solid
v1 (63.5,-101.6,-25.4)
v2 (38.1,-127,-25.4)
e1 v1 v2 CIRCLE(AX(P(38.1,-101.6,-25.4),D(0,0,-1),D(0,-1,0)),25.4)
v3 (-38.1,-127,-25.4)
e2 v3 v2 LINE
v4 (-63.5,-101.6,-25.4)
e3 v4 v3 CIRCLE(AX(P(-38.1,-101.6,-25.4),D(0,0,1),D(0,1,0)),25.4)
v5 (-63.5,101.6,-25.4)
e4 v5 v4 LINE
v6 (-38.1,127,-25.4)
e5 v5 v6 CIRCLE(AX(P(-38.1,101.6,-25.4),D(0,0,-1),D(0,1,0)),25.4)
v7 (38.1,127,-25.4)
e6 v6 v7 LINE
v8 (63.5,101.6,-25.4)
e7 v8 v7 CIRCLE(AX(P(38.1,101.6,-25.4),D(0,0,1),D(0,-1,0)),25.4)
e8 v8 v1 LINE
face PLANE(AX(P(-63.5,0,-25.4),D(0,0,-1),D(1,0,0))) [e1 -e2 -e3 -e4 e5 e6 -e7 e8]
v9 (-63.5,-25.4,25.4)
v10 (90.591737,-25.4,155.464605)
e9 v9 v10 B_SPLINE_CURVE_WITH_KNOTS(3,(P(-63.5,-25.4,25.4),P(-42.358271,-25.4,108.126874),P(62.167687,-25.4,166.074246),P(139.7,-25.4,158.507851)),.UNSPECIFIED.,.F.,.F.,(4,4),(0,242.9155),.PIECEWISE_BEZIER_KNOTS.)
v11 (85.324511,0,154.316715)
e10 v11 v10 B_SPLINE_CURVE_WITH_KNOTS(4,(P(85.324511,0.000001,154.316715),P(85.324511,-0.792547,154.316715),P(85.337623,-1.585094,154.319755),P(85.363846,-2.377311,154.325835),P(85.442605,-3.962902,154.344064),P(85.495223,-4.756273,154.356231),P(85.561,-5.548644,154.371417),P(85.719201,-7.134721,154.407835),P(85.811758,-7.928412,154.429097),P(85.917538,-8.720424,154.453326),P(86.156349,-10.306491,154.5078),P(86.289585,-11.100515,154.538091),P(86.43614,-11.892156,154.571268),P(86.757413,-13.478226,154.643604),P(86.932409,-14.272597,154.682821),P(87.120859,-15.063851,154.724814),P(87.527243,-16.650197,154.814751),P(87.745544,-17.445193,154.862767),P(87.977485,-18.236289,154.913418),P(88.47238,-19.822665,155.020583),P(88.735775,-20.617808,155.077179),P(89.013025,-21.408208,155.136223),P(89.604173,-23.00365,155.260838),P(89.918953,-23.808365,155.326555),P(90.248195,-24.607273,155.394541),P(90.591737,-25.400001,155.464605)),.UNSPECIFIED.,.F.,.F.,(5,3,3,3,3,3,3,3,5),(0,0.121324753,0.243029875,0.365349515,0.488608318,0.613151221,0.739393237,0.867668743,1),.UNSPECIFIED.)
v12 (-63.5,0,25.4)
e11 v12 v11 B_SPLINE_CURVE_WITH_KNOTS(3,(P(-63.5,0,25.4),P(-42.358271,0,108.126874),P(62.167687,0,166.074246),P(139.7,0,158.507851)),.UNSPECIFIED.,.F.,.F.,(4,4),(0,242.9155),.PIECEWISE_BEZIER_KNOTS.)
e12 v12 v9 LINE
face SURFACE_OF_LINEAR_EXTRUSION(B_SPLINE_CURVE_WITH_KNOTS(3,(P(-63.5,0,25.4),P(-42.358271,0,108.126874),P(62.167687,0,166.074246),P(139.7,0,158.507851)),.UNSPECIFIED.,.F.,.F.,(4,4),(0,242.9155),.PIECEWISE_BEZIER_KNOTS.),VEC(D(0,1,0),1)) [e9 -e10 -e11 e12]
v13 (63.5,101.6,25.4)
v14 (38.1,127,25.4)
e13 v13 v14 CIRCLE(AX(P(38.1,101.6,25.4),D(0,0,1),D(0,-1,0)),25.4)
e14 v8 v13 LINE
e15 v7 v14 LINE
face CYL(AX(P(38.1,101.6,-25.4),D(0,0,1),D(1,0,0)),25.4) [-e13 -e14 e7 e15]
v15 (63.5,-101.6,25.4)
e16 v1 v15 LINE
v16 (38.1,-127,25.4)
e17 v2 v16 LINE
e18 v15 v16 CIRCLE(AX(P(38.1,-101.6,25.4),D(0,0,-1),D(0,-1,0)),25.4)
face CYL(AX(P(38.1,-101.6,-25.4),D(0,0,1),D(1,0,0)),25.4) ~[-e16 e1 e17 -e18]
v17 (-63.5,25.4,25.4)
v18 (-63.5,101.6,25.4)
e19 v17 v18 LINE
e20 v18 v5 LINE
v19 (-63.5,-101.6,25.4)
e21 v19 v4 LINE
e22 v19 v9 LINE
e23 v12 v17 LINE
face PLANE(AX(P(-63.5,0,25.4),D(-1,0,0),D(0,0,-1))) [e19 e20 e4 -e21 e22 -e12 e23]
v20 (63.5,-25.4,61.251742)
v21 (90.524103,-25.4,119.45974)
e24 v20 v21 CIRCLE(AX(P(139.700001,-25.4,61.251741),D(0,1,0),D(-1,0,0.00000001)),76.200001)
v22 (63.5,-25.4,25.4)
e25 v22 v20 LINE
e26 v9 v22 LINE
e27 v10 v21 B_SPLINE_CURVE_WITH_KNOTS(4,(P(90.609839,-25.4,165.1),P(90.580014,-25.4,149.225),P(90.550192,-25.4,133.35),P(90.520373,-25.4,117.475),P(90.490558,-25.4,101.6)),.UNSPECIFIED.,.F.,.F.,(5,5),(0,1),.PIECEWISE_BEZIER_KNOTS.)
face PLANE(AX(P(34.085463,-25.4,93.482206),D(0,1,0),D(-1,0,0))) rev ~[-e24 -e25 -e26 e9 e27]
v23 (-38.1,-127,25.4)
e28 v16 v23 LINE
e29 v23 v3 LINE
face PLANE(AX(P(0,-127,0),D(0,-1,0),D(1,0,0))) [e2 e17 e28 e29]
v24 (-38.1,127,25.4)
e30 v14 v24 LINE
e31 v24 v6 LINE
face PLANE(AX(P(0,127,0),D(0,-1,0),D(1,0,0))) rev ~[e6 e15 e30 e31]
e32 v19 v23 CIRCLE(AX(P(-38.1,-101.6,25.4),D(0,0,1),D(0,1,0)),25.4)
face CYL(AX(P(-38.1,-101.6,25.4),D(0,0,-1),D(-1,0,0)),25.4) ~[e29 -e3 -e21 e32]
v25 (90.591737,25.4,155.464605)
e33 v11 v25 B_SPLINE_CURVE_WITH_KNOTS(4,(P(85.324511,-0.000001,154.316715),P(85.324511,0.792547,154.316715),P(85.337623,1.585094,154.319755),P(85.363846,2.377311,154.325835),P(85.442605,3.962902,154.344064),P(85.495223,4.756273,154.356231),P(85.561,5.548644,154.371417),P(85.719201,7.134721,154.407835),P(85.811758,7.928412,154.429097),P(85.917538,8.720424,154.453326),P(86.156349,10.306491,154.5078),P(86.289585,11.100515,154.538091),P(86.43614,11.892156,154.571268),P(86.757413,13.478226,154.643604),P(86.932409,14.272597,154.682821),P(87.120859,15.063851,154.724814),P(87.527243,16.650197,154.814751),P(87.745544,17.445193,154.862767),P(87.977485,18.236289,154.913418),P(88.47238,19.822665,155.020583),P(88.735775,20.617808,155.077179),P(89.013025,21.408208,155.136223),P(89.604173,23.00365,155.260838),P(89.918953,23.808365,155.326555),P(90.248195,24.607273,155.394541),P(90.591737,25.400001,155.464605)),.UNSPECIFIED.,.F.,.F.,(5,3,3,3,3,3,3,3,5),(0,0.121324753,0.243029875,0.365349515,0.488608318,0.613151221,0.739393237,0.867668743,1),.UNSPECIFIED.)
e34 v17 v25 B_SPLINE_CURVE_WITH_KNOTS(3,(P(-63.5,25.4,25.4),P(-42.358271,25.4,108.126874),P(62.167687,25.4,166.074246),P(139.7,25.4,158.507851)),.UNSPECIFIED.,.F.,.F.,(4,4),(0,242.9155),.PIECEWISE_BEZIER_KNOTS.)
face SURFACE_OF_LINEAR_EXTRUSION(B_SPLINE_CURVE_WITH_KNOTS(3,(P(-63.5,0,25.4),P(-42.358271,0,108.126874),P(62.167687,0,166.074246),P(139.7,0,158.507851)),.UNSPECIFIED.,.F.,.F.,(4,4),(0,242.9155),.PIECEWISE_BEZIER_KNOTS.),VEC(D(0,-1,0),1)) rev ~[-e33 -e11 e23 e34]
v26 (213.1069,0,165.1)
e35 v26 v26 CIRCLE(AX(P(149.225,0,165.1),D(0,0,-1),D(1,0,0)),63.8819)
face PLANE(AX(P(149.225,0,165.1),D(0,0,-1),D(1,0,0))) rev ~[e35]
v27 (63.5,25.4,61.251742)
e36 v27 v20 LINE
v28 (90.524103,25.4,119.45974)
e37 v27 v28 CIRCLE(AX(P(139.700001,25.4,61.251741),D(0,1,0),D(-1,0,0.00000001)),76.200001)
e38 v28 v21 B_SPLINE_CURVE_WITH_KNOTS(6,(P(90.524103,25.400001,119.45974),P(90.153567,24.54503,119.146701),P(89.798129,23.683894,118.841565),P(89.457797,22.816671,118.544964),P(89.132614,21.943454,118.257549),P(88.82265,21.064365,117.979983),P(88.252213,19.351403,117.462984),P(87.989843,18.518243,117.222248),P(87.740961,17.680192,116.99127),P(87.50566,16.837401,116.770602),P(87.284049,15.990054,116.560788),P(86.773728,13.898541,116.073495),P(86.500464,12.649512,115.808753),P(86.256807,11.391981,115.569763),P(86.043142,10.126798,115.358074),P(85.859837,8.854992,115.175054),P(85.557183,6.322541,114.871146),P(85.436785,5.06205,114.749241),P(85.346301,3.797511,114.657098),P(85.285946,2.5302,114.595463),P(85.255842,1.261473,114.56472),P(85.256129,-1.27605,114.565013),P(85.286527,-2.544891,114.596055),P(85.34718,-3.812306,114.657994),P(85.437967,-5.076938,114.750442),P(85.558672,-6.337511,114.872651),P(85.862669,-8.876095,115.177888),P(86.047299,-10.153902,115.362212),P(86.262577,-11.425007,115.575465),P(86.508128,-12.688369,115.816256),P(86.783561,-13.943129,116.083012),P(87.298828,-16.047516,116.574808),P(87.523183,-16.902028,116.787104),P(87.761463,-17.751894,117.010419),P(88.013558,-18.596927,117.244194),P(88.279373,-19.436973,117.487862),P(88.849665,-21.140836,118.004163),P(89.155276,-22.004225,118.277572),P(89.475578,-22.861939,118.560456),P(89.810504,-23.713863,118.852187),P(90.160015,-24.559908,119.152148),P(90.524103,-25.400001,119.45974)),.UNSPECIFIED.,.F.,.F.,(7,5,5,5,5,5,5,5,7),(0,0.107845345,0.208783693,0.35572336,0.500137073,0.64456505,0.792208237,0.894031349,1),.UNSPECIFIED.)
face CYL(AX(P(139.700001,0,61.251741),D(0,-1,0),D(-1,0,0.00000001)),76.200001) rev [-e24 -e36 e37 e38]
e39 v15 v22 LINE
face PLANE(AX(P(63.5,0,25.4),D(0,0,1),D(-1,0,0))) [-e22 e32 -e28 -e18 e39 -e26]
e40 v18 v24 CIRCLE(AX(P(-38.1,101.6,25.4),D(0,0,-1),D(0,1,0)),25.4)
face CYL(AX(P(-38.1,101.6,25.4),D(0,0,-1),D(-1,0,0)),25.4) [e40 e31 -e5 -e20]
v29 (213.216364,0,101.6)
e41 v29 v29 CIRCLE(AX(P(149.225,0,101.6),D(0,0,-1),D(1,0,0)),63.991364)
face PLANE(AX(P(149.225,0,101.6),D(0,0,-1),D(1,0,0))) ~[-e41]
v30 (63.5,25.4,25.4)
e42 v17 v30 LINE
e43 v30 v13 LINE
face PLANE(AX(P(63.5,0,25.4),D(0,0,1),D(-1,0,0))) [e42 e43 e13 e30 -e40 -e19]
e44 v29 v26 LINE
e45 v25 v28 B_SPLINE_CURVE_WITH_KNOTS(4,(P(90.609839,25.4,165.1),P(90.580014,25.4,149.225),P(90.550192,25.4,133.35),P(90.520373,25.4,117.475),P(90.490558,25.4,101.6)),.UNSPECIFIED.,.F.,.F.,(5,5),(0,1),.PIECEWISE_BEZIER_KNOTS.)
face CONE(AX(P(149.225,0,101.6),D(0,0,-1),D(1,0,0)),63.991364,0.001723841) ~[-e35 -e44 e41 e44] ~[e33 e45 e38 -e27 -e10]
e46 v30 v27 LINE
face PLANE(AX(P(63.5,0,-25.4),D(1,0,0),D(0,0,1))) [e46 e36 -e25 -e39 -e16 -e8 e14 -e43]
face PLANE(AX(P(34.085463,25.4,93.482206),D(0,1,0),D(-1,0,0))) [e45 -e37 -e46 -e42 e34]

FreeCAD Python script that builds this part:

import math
import FreeCAD as App
import Part
import Sketcher
Q = App.Units.Quantity


def edges_at(feature, points):
    """Names of the edges that pass closest to the given points."""
    edges = feature.Shape.Edges
    near = lambda p: min(range(len(edges)), key=lambda i: edges[i].distToShape(Part.Vertex(*p))[0])
    return sorted({f"Edge{near(p) + 1}" for p in points})

doc = App.newDocument("Part")
body = doc.addObject("PartDesign::Body", "Body")

sketch1 = body.newObject("Sketcher::SketchObject", "Sketch")
sketch1.AttachmentSupport = (doc.getObject("XZ_Plane"), [""])
sketch1.MapMode = "FlatFace"
sketch1.addGeometry(Part.LineSegment(App.Vector(-63.5, 25.4, 0), App.Vector(-63.5, -25.4, 0)), False)
sketch1.addGeometry(Part.LineSegment(App.Vector(-63.5, -25.4, 0), App.Vector(63.5, -25.4, 0)), False)
sketch1.addGeometry(Part.LineSegment(App.Vector(63.5, -25.4, 0), App.Vector(63.5, 25.4, 0)), False)
sketch1.addGeometry(Part.LineSegment(App.Vector(63.5, 25.4, 0), App.Vector(-63.5, 25.4, 0)), False)
sketch1.addConstraint(Sketcher.Constraint("Coincident", 0, 2, 1, 1))
sketch1.addConstraint(Sketcher.Constraint("Coincident", 1, 2, 2, 1))
sketch1.addConstraint(Sketcher.Constraint("Coincident", 2, 2, 3, 1))
sketch1.addConstraint(Sketcher.Constraint("Coincident", 3, 2, 0, 1))
sketch1.addConstraint(Sketcher.Constraint("Vertical", 0))
sketch1.addConstraint(Sketcher.Constraint("Horizontal", 1))
sketch1.addConstraint(Sketcher.Constraint("Vertical", 2))
sketch1.addConstraint(Sketcher.Constraint("Horizontal", 3))
sketch1.addConstraint(Sketcher.Constraint("Symmetric", 0, 2, 2, 2, -1, 1))
sketch1.addConstraint(Sketcher.Constraint("DistanceX", 1, 1, 1, 2, Q("5 in")))
sketch1.addConstraint(Sketcher.Constraint("DistanceY", 0, 2, 0, 1, Q("2 in")))
pad1 = body.newObject("PartDesign::Pad", "Pad")
pad1.Profile = sketch1
pad1.Length = Q("10 in")
pad1.Midplane = True

sketch2 = body.newObject("Sketcher::SketchObject", "Sketch001")
sketch2.AttachmentSupport = (doc.getObject("XZ_Plane"), [""])
sketch2.MapMode = "FlatFace"
sketch2.addGeometry(Part.BSplineCurve([App.Vector(-63.5, 25.4, 0), App.Vector(-42.358271, 108.126874, 0), App.Vector(62.167687, 166.074246, 0), App.Vector(139.7, 158.507851, 0)], [4, 4], [0, 242.9155], False, 3, [1, 1, 1, 1], False), False)
sketch2.addGeometry(Part.LineSegment(App.Vector(-63.5, 25.4, 0), App.Vector(63.5, 25.4, 0)), False)
sketch2.addGeometry(Part.LineSegment(App.Vector(63.5, 25.4, 0), App.Vector(63.5, 61.251742, 0)), False)
sketch2.addGeometry(Part.ArcOfCircle(Part.Circle(App.Vector(139.700001, 61.251741, 0), App.Vector(0, 0, 1), 76.200001), math.radians(90.000001), math.radians(179.999999)), False)
sketch2.addGeometry(Part.LineSegment(App.Vector(139.7, 137.451742, 0), App.Vector(149.225, 137.451742, 0)), False)
sketch2.addGeometry(Part.LineSegment(App.Vector(149.225, 137.451742, 0), App.Vector(149.225, 158.507851, 0)), False)
sketch2.addGeometry(Part.LineSegment(App.Vector(149.225, 158.507851, 0), App.Vector(139.7, 158.507851, 0)), False)
sketch2.addConstraint(Sketcher.Constraint("Block", 0))
sketch2.addConstraint(Sketcher.Constraint("Coincident", 0, 1, 1, 1))
sketch2.addConstraint(Sketcher.Constraint("Coincident", 1, 2, 2, 1))
sketch2.addConstraint(Sketcher.Constraint("Tangent", 2, 2, 3, 2))
sketch2.addConstraint(Sketcher.Constraint("Tangent", 3, 1, 4, 1))
sketch2.addConstraint(Sketcher.Constraint("Coincident", 4, 2, 5, 1))
sketch2.addConstraint(Sketcher.Constraint("Coincident", 5, 2, 6, 1))
sketch2.addConstraint(Sketcher.Constraint("Coincident", 6, 2, 0, 2))
sketch2.addConstraint(Sketcher.Constraint("Horizontal", 1))
sketch2.addConstraint(Sketcher.Constraint("Vertical", 2))
sketch2.addConstraint(Sketcher.Constraint("Horizontal", 4))
sketch2.addConstraint(Sketcher.Constraint("Vertical", 5))
sketch2.addConstraint(Sketcher.Constraint("Horizontal", 6))
sketch2.addConstraint(Sketcher.Constraint("Vertical", 3, 1, 6, 2))
sketch2.addConstraint(Sketcher.Constraint("Radius", 3, Q("3 in")))
sketch2.addConstraint(Sketcher.Constraint("DistanceX", 4, 1, 4, 2, Q("0.375 in")))
sketch2.addConstraint(Sketcher.Constraint("DistanceY", 5, 1, 5, 2, 21.056109))
pad2 = body.newObject("PartDesign::Pad", "Pad001")
pad2.Profile = sketch2
pad2.Length = Q("2 in")
pad2.Midplane = True

sketch3 = body.newObject("Sketcher::SketchObject", "Sketch002")
sketch3.AttachmentSupport = (doc.getObject("XZ_Plane"), [""])
sketch3.MapMode = "FlatFace"
sketch3.addGeometry(Part.LineSegment(App.Vector(149.225, 165.1, 0), App.Vector(149.225, 101.6, 0)), False)
sketch3.addGeometry(Part.LineSegment(App.Vector(149.225, 101.6, 0), App.Vector(213.216364, 101.6, 0)), False)
sketch3.addGeometry(Part.LineSegment(App.Vector(213.216364, 101.6, 0), App.Vector(213.1069, 165.1, 0)), False)
sketch3.addGeometry(Part.LineSegment(App.Vector(213.1069, 165.1, 0), App.Vector(149.225, 165.1, 0)), False)
sketch3.addGeometry(Part.LineSegment(App.Vector(149.225, 165.1, 0), App.Vector(149.225, 101.6, 0)), True)
sketch3.addConstraint(Sketcher.Constraint("Coincident", 0, 2, 1, 1))
sketch3.addConstraint(Sketcher.Constraint("Coincident", 1, 2, 2, 1))
sketch3.addConstraint(Sketcher.Constraint("Coincident", 2, 2, 3, 1))
sketch3.addConstraint(Sketcher.Constraint("Coincident", 3, 2, 0, 1))
sketch3.addConstraint(Sketcher.Constraint("Vertical", 0))
sketch3.addConstraint(Sketcher.Constraint("Horizontal", 1))
sketch3.addConstraint(Sketcher.Constraint("Horizontal", 3))
sketch3.addConstraint(Sketcher.Constraint("Vertical", 4))
sketch3.addConstraint(Sketcher.Constraint("Coincident", 4, 1, 3, 2))
sketch3.addConstraint(Sketcher.Constraint("Horizontal", 1, 2, 4, 2))
sketch3.addConstraint(Sketcher.Constraint("DistanceY", 0, 2, 0, 1, Q("2.5 in")))
sketch3.addConstraint(Sketcher.Constraint("DistanceY", -1, 1, 0, 2, Q("4 in")))
sketch3.addConstraint(Sketcher.Constraint("DistanceX", -1, 1, 0, 2, Q("5.875 in")))
sketch3.addConstraint(Sketcher.Constraint("DistanceX", 3, 2, 3, 1, 63.8819))
sketch3.addConstraint(Sketcher.Constraint("DistanceX", 1, 1, 1, 2, 63.991364))
revolution = body.newObject("PartDesign::Revolution", "Revolution")
revolution.Profile = sketch3
revolution.ReferenceAxis = (sketch3, ["Axis0"])
revolution.Angle = 360
doc.recompute()

fillet = body.newObject("PartDesign::Fillet", "Fillet")
fillet.Base = (revolution, edges_at(revolution, [
    (63.5, -127, 0),
    (-63.5, -127, 0),
    (63.5, 127, 0),
    (-63.5, 127, 0),
]))
fillet.Radius = Q("1 in")

doc.recompute()
